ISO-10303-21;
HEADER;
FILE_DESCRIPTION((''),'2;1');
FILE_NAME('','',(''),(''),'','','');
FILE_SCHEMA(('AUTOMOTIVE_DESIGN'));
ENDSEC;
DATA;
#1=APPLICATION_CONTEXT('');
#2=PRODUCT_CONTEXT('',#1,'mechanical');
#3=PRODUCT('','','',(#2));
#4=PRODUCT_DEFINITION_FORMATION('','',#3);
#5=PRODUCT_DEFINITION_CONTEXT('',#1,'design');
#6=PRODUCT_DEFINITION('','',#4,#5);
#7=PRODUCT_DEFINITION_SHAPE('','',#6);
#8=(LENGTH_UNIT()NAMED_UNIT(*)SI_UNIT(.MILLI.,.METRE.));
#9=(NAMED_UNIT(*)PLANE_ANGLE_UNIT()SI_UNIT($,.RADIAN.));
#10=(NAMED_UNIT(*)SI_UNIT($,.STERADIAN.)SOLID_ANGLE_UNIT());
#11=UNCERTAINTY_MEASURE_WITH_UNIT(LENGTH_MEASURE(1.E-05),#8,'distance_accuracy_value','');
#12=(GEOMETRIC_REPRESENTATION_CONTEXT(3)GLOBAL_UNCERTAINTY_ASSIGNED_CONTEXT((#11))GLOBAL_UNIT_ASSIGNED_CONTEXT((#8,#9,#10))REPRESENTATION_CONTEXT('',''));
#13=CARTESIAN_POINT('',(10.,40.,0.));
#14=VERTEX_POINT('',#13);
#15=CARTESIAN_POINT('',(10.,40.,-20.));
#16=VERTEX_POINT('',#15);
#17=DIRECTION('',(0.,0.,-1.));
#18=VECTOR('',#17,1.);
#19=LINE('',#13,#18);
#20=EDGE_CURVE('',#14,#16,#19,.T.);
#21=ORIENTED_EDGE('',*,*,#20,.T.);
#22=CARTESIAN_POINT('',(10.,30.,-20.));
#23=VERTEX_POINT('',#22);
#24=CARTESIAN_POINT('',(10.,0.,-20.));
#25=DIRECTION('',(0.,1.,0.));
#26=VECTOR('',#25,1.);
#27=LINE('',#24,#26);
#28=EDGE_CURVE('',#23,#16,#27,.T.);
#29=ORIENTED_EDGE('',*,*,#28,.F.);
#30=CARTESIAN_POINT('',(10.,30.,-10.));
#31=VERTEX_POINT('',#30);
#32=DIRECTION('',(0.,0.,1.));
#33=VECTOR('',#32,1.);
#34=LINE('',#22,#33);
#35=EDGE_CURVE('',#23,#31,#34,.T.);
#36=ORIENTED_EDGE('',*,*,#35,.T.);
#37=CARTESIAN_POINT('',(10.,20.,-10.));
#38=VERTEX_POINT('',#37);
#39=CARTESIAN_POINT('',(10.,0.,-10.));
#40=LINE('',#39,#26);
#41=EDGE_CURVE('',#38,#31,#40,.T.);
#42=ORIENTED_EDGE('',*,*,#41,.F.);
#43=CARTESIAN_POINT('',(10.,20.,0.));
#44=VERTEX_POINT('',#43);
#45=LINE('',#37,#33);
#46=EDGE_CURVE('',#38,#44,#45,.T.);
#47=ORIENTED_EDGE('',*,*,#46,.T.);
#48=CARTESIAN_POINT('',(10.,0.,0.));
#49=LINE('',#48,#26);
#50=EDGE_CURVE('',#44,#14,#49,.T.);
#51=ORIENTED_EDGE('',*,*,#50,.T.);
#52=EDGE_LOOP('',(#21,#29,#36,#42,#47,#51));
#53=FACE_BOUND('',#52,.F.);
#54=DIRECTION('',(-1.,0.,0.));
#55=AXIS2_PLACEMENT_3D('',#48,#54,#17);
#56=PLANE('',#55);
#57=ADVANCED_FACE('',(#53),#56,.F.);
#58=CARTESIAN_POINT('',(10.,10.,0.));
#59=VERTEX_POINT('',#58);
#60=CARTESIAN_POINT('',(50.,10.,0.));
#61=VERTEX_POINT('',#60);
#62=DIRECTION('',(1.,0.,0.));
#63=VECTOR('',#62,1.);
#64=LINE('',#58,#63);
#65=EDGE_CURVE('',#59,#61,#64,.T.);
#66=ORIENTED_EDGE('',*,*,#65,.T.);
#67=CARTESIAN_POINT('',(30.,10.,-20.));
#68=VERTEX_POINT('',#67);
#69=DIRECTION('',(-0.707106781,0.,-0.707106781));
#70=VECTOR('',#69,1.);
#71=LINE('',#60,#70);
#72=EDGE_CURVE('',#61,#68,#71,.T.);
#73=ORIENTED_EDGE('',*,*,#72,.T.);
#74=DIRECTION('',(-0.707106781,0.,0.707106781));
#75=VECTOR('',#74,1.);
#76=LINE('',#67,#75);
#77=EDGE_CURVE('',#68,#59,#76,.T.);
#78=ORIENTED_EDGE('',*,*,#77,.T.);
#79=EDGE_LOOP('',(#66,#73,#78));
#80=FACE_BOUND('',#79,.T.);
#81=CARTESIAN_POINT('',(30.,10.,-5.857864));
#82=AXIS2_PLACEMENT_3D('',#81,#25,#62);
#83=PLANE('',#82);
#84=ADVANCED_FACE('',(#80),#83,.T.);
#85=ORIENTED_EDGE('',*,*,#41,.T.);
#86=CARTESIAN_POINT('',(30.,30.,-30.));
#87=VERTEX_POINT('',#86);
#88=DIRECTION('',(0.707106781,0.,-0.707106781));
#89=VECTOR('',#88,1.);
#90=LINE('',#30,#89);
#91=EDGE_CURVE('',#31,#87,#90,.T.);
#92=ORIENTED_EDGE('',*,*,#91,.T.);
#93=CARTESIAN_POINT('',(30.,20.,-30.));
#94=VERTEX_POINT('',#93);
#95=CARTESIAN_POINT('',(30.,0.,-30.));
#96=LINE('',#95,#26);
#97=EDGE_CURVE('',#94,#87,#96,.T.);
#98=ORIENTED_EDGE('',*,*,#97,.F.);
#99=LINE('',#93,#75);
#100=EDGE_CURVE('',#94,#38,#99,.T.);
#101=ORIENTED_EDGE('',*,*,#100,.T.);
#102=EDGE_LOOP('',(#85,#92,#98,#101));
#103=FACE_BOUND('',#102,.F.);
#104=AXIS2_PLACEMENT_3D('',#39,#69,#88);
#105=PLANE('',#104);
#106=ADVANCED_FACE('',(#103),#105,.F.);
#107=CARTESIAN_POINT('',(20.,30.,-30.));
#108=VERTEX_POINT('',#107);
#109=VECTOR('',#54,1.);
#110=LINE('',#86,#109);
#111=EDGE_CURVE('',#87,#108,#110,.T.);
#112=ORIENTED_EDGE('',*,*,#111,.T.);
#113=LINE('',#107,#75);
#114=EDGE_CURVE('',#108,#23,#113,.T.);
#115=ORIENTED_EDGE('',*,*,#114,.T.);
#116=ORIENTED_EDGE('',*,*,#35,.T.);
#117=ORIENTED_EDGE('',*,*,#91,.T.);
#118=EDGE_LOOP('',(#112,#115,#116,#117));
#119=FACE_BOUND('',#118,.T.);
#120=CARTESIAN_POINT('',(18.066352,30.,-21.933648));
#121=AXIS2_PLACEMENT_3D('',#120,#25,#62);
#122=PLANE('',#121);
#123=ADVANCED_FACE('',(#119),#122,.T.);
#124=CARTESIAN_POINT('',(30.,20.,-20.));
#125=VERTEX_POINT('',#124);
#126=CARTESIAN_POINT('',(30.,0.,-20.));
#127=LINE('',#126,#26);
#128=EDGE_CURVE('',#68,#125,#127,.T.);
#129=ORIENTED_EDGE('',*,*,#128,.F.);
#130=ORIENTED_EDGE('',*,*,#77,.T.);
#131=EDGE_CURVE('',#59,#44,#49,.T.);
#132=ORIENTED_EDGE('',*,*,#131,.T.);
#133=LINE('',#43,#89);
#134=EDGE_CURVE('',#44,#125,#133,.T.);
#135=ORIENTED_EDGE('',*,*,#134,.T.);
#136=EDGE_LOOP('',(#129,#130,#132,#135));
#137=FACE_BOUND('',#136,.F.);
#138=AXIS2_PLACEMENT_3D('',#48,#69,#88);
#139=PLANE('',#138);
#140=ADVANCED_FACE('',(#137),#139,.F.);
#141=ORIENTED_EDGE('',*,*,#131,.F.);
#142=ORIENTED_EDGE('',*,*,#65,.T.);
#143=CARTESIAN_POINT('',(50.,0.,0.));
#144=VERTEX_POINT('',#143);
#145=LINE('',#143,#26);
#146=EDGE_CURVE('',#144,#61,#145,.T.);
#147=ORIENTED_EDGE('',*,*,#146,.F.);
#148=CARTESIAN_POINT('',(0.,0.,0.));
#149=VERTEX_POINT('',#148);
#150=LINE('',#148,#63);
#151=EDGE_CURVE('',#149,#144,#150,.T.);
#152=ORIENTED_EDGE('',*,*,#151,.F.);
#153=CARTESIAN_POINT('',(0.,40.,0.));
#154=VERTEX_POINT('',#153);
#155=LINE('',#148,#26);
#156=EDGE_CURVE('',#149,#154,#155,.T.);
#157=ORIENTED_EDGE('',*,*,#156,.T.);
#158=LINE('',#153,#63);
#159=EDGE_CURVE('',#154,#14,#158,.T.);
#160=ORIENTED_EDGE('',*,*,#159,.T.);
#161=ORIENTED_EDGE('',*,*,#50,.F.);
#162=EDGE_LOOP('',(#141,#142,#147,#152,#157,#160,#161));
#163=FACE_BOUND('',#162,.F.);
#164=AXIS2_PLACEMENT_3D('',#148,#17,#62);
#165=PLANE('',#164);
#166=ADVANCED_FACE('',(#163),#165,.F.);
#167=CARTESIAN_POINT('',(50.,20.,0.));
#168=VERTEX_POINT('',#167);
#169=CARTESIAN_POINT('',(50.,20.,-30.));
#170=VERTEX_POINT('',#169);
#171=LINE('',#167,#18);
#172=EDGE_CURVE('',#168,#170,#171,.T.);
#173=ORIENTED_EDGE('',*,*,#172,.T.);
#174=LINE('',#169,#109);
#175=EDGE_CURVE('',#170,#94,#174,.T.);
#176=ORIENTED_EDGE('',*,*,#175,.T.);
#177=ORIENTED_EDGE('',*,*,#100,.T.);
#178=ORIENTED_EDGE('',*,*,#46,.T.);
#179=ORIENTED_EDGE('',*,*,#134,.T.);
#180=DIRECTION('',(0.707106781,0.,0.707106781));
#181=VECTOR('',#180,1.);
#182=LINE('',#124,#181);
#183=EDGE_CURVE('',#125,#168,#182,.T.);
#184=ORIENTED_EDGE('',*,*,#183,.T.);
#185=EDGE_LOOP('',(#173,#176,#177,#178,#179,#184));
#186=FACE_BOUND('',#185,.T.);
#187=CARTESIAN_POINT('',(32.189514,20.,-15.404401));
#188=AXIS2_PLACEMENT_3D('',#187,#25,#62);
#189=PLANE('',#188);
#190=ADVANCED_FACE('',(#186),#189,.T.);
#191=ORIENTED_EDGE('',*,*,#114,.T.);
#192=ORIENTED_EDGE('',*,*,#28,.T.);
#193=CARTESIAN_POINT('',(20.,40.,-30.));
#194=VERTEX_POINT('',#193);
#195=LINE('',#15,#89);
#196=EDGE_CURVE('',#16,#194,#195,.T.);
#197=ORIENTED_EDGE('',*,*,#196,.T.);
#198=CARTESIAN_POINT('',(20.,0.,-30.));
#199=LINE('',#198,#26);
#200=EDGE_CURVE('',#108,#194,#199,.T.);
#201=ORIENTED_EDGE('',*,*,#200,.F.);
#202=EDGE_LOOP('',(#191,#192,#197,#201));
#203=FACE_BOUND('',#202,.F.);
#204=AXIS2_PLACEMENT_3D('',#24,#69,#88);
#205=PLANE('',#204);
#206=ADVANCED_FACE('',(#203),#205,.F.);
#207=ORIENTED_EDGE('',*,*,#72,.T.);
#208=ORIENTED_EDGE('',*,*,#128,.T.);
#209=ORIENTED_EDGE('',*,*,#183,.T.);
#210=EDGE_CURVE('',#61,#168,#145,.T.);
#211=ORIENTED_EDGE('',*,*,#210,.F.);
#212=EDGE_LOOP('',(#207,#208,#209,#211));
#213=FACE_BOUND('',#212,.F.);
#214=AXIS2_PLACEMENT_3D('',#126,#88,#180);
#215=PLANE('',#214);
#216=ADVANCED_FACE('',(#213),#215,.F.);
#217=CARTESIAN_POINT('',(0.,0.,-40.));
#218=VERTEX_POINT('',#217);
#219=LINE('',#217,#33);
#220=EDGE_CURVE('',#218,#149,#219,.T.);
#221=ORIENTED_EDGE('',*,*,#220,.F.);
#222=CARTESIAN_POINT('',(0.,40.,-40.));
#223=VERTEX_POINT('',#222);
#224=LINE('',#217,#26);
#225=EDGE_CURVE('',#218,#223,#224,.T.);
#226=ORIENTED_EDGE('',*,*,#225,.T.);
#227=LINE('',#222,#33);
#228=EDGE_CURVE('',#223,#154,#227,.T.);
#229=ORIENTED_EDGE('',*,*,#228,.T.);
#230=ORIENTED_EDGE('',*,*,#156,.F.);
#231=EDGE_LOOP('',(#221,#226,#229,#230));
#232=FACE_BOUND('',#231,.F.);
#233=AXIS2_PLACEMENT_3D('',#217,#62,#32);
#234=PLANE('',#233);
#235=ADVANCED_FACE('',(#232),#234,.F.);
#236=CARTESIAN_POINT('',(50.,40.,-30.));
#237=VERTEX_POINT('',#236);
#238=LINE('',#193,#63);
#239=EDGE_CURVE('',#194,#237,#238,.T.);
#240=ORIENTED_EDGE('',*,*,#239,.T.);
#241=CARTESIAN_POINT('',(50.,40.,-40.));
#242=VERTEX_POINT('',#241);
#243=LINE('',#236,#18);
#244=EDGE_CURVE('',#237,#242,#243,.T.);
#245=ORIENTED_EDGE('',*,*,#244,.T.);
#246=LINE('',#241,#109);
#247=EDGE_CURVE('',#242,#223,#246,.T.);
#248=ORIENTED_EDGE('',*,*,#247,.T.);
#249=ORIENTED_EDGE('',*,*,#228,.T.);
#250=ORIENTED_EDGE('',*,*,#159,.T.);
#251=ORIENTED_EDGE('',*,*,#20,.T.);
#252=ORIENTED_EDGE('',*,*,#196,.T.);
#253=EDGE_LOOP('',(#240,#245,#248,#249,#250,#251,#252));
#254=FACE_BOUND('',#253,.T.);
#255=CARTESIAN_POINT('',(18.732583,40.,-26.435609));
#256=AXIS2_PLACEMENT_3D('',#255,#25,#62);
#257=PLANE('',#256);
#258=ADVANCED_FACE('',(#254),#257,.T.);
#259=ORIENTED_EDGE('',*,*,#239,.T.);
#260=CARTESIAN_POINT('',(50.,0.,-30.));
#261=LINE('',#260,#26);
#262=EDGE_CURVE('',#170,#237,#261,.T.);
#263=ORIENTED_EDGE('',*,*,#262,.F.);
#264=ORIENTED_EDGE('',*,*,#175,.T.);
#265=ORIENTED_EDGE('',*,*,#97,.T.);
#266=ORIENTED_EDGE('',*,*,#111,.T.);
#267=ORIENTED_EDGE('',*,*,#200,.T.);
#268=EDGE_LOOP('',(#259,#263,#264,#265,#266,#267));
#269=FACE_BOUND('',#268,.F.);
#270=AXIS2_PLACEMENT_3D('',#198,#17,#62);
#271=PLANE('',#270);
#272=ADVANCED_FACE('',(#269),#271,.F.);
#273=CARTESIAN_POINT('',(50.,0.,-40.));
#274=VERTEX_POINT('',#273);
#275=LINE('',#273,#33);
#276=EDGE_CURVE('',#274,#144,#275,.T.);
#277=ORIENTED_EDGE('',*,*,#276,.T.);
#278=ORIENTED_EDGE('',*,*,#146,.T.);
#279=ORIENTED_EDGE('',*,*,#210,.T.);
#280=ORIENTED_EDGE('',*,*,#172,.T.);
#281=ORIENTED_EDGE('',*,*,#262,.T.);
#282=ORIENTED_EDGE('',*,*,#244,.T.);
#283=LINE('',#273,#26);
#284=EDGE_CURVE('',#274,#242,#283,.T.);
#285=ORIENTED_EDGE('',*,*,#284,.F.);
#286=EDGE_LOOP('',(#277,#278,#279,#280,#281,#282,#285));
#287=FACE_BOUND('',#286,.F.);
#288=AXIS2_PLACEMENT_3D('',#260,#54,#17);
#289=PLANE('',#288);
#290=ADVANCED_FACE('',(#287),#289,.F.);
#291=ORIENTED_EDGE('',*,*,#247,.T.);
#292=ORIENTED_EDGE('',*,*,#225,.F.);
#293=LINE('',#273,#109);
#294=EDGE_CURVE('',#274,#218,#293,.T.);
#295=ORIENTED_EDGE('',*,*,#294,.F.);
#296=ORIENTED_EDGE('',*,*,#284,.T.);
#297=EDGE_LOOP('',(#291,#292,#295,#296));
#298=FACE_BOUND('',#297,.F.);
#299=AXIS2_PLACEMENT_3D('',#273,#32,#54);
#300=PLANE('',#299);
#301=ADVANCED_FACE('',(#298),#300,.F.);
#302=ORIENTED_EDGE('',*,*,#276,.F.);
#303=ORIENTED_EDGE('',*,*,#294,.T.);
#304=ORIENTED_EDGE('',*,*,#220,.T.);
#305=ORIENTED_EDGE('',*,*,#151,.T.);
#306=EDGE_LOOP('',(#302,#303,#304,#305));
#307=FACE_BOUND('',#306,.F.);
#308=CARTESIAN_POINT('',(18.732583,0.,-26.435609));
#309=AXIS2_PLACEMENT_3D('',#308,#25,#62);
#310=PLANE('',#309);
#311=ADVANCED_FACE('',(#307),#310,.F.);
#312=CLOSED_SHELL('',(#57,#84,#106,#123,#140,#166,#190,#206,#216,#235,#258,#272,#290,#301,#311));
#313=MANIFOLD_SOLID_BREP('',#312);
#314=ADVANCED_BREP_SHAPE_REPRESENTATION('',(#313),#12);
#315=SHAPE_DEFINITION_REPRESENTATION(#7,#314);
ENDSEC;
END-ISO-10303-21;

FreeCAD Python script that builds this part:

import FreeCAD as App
import Part
import Sketcher

V = App.Vector

doc = App.newDocument("Part")
body = doc.addObject("PartDesign::Body", "Body")

sketch1 = body.newObject("Sketcher::SketchObject", "Sketch")
sketch1.AttachmentSupport = (doc.getObject("XZ_Plane"), [""])
sketch1.MapMode = "FlatFace"
sketch1.addGeometry([
    Part.LineSegment(V(30, -20, 0), V(10, 0, 0)),
    Part.LineSegment(V(10, 0, 0), V(50, 0, 0)),
    Part.LineSegment(V(50, 0, 0), V(30, -20, 0)),
], False)
sketch1.addConstraint([
    Sketcher.Constraint("Coincident", 0, 2, 1, 1),
    Sketcher.Constraint("Coincident", 1, 2, 2, 1),
    Sketcher.Constraint("Coincident", 2, 2, 0, 1),
    Sketcher.Constraint("Horizontal", 1),
    Sketcher.Constraint("PointOnObject", 0, 2, -1),
    Sketcher.Constraint("Perpendicular", 0, 2),
    Sketcher.Constraint("Equal", 0, 2),
    Sketcher.Constraint("DistanceX", 1, 1, 1, 2, 40.0),
    Sketcher.Constraint("DistanceX", -1, 1, 0, 2, 10.0),
])
pad1 = body.newObject("PartDesign::Pad", "Pad")
pad1.Profile = sketch1
pad1.Length = 10
pad1.Reversed = True

sketch2 = body.newObject("Sketcher::SketchObject", "Sketch001")
sketch2.AttachmentSupport = (doc.getObject("XZ_Plane"), [""])
sketch2.MapMode = "FlatFace"
sketch2.addGeometry([
    Part.LineSegment(V(10, -10, 0), V(10, 0, 0)),
    Part.LineSegment(V(10, 0, 0), V(30, -20, 0)),
    Part.LineSegment(V(30, -20, 0), V(50, 0, 0)),
    Part.LineSegment(V(50, 0, 0), V(50, -30, 0)),
    Part.LineSegment(V(50, -30, 0), V(30, -30, 0)),
    Part.LineSegment(V(30, -30, 0), V(10, -10, 0)),
], False)
sketch2.addConstraint([
    Sketcher.Constraint("Coincident", 0, 2, 1, 1),
    Sketcher.Constraint("Coincident", 1, 2, 2, 1),
    Sketcher.Constraint("Coincident", 2, 2, 3, 1),
    Sketcher.Constraint("Coincident", 3, 2, 4, 1),
    Sketcher.Constraint("Coincident", 4, 2, 5, 1),
    Sketcher.Constraint("Coincident", 5, 2, 0, 1),
    Sketcher.Constraint("Vertical", 0),
    Sketcher.Constraint("Vertical", 3),
    Sketcher.Constraint("Horizontal", 4),
    Sketcher.Constraint("PointOnObject", 0, 2, -1),
    Sketcher.Constraint("PointOnObject", 2, 2, -1),
    Sketcher.Constraint("Perpendicular", 1, 2),
    Sketcher.Constraint("Perpendicular", 2, 5),
    Sketcher.Constraint("Vertical", 1, 2, 4, 2),
    Sketcher.Constraint("Equal", 1, 2),
    Sketcher.Constraint("DistanceX", 4, 2, 4, 1, 20.0),
    Sketcher.Constraint("DistanceY", 0, 1, 0, 2, 10.0),
    Sketcher.Constraint("DistanceX", -1, 1, 0, 2, 10.0),
])
pad2 = body.newObject("PartDesign::Pad", "Pad001")
pad2.Profile = sketch2
pad2.Length = 20
pad2.Reversed = True

sketch3 = body.newObject("Sketcher::SketchObject", "Sketch002")
sketch3.AttachmentSupport = (doc.getObject("XZ_Plane"), [""])
sketch3.MapMode = "FlatFace"
sketch3.addGeometry([
    Part.LineSegment(V(10, -20, 0), V(10, -10, 0)),
    Part.LineSegment(V(10, -10, 0), V(30, -30, 0)),
    Part.LineSegment(V(30, -30, 0), V(20, -30, 0)),
    Part.LineSegment(V(20, -30, 0), V(10, -20, 0)),
], False)
sketch3.addConstraint([
    Sketcher.Constraint("Coincident", 0, 2, 1, 1),
    Sketcher.Constraint("Coincident", 1, 2, 2, 1),
    Sketcher.Constraint("Coincident", 2, 2, 3, 1),
    Sketcher.Constraint("Coincident", 3, 2, 0, 1),
    Sketcher.Constraint("Vertical", 0),
    Sketcher.Constraint("Horizontal", 2),
    Sketcher.Constraint("Parallel", 1, 3),
    Sketcher.Constraint("Equal", 2, 0),
    Sketcher.Constraint("DistanceX", 2, 2, 2, 1, 10.0),
    Sketcher.Constraint("DistanceX", -1, 1, 0, 2, 10.0),
    Sketcher.Constraint("DistanceY", 0, 2, -1, 1, 10.0),
    Sketcher.Constraint("DistanceX", -1, 1, 1, 2, 30.0),
])
pad3 = body.newObject("PartDesign::Pad", "Pad002")
pad3.Profile = sketch3
pad3.Length = 30
pad3.Reversed = True

sketch4 = body.newObject("Sketcher::SketchObject", "Sketch003")
sketch4.AttachmentSupport = (doc.getObject("XZ_Plane"), [""])
sketch4.MapMode = "FlatFace"
sketch4.addGeometry([
    Part.LineSegment(V(0, -40, 0), V(0, 0, 0)),
    Part.LineSegment(V(0, 0, 0), V(10, 0, 0)),
    Part.LineSegment(V(10, 0, 0), V(10, -20, 0)),
    Part.LineSegment(V(10, -20, 0), V(20, -30, 0)),
    Part.LineSegment(V(20, -30, 0), V(50, -30, 0)),
    Part.LineSegment(V(50, -30, 0), V(50, -40, 0)),
    Part.LineSegment(V(50, -40, 0), V(0, -40, 0)),
], False)
sketch4.addConstraint([
    Sketcher.Constraint("Coincident", 0, 2, 1, 1),
    Sketcher.Constraint("Coincident", 1, 2, 2, 1),
    Sketcher.Constraint("Coincident", 2, 2, 3, 1),
    Sketcher.Constraint("Coincident", 3, 2, 4, 1),
    Sketcher.Constraint("Coincident", 4, 2, 5, 1),
    Sketcher.Constraint("Coincident", 5, 2, 6, 1),
    Sketcher.Constraint("Coincident", 6, 2, 0, 1),
    Sketcher.Constraint("Vertical", 0),
    Sketcher.Constraint("Horizontal", 1),
    Sketcher.Constraint("Vertical", 2),
    Sketcher.Constraint("Horizontal", 4),
    Sketcher.Constraint("Vertical", 5),
    Sketcher.Constraint("Horizontal", 6),
    Sketcher.Constraint("Coincident", 0, 2, -1, 1),
    Sketcher.Constraint("Equal", 1, 5),
    Sketcher.Constraint("DistanceX", 1, 1, 1, 2, 10.0),
    Sketcher.Constraint("DistanceX", 4, 1, 4, 2, 30.0),
    Sketcher.Constraint("DistanceX", 6, 2, 6, 1, 50.0),
    Sketcher.Constraint("DistanceY", 0, 1, 0, 2, 40.0),
    Sketcher.Constraint("DistanceY", 2, 2, 2, 1, 20.0),
])
pad4 = body.newObject("PartDesign::Pad", "Pad003")
pad4.Profile = sketch4
pad4.Length = 40
pad4.Reversed = True

doc.recompute()
